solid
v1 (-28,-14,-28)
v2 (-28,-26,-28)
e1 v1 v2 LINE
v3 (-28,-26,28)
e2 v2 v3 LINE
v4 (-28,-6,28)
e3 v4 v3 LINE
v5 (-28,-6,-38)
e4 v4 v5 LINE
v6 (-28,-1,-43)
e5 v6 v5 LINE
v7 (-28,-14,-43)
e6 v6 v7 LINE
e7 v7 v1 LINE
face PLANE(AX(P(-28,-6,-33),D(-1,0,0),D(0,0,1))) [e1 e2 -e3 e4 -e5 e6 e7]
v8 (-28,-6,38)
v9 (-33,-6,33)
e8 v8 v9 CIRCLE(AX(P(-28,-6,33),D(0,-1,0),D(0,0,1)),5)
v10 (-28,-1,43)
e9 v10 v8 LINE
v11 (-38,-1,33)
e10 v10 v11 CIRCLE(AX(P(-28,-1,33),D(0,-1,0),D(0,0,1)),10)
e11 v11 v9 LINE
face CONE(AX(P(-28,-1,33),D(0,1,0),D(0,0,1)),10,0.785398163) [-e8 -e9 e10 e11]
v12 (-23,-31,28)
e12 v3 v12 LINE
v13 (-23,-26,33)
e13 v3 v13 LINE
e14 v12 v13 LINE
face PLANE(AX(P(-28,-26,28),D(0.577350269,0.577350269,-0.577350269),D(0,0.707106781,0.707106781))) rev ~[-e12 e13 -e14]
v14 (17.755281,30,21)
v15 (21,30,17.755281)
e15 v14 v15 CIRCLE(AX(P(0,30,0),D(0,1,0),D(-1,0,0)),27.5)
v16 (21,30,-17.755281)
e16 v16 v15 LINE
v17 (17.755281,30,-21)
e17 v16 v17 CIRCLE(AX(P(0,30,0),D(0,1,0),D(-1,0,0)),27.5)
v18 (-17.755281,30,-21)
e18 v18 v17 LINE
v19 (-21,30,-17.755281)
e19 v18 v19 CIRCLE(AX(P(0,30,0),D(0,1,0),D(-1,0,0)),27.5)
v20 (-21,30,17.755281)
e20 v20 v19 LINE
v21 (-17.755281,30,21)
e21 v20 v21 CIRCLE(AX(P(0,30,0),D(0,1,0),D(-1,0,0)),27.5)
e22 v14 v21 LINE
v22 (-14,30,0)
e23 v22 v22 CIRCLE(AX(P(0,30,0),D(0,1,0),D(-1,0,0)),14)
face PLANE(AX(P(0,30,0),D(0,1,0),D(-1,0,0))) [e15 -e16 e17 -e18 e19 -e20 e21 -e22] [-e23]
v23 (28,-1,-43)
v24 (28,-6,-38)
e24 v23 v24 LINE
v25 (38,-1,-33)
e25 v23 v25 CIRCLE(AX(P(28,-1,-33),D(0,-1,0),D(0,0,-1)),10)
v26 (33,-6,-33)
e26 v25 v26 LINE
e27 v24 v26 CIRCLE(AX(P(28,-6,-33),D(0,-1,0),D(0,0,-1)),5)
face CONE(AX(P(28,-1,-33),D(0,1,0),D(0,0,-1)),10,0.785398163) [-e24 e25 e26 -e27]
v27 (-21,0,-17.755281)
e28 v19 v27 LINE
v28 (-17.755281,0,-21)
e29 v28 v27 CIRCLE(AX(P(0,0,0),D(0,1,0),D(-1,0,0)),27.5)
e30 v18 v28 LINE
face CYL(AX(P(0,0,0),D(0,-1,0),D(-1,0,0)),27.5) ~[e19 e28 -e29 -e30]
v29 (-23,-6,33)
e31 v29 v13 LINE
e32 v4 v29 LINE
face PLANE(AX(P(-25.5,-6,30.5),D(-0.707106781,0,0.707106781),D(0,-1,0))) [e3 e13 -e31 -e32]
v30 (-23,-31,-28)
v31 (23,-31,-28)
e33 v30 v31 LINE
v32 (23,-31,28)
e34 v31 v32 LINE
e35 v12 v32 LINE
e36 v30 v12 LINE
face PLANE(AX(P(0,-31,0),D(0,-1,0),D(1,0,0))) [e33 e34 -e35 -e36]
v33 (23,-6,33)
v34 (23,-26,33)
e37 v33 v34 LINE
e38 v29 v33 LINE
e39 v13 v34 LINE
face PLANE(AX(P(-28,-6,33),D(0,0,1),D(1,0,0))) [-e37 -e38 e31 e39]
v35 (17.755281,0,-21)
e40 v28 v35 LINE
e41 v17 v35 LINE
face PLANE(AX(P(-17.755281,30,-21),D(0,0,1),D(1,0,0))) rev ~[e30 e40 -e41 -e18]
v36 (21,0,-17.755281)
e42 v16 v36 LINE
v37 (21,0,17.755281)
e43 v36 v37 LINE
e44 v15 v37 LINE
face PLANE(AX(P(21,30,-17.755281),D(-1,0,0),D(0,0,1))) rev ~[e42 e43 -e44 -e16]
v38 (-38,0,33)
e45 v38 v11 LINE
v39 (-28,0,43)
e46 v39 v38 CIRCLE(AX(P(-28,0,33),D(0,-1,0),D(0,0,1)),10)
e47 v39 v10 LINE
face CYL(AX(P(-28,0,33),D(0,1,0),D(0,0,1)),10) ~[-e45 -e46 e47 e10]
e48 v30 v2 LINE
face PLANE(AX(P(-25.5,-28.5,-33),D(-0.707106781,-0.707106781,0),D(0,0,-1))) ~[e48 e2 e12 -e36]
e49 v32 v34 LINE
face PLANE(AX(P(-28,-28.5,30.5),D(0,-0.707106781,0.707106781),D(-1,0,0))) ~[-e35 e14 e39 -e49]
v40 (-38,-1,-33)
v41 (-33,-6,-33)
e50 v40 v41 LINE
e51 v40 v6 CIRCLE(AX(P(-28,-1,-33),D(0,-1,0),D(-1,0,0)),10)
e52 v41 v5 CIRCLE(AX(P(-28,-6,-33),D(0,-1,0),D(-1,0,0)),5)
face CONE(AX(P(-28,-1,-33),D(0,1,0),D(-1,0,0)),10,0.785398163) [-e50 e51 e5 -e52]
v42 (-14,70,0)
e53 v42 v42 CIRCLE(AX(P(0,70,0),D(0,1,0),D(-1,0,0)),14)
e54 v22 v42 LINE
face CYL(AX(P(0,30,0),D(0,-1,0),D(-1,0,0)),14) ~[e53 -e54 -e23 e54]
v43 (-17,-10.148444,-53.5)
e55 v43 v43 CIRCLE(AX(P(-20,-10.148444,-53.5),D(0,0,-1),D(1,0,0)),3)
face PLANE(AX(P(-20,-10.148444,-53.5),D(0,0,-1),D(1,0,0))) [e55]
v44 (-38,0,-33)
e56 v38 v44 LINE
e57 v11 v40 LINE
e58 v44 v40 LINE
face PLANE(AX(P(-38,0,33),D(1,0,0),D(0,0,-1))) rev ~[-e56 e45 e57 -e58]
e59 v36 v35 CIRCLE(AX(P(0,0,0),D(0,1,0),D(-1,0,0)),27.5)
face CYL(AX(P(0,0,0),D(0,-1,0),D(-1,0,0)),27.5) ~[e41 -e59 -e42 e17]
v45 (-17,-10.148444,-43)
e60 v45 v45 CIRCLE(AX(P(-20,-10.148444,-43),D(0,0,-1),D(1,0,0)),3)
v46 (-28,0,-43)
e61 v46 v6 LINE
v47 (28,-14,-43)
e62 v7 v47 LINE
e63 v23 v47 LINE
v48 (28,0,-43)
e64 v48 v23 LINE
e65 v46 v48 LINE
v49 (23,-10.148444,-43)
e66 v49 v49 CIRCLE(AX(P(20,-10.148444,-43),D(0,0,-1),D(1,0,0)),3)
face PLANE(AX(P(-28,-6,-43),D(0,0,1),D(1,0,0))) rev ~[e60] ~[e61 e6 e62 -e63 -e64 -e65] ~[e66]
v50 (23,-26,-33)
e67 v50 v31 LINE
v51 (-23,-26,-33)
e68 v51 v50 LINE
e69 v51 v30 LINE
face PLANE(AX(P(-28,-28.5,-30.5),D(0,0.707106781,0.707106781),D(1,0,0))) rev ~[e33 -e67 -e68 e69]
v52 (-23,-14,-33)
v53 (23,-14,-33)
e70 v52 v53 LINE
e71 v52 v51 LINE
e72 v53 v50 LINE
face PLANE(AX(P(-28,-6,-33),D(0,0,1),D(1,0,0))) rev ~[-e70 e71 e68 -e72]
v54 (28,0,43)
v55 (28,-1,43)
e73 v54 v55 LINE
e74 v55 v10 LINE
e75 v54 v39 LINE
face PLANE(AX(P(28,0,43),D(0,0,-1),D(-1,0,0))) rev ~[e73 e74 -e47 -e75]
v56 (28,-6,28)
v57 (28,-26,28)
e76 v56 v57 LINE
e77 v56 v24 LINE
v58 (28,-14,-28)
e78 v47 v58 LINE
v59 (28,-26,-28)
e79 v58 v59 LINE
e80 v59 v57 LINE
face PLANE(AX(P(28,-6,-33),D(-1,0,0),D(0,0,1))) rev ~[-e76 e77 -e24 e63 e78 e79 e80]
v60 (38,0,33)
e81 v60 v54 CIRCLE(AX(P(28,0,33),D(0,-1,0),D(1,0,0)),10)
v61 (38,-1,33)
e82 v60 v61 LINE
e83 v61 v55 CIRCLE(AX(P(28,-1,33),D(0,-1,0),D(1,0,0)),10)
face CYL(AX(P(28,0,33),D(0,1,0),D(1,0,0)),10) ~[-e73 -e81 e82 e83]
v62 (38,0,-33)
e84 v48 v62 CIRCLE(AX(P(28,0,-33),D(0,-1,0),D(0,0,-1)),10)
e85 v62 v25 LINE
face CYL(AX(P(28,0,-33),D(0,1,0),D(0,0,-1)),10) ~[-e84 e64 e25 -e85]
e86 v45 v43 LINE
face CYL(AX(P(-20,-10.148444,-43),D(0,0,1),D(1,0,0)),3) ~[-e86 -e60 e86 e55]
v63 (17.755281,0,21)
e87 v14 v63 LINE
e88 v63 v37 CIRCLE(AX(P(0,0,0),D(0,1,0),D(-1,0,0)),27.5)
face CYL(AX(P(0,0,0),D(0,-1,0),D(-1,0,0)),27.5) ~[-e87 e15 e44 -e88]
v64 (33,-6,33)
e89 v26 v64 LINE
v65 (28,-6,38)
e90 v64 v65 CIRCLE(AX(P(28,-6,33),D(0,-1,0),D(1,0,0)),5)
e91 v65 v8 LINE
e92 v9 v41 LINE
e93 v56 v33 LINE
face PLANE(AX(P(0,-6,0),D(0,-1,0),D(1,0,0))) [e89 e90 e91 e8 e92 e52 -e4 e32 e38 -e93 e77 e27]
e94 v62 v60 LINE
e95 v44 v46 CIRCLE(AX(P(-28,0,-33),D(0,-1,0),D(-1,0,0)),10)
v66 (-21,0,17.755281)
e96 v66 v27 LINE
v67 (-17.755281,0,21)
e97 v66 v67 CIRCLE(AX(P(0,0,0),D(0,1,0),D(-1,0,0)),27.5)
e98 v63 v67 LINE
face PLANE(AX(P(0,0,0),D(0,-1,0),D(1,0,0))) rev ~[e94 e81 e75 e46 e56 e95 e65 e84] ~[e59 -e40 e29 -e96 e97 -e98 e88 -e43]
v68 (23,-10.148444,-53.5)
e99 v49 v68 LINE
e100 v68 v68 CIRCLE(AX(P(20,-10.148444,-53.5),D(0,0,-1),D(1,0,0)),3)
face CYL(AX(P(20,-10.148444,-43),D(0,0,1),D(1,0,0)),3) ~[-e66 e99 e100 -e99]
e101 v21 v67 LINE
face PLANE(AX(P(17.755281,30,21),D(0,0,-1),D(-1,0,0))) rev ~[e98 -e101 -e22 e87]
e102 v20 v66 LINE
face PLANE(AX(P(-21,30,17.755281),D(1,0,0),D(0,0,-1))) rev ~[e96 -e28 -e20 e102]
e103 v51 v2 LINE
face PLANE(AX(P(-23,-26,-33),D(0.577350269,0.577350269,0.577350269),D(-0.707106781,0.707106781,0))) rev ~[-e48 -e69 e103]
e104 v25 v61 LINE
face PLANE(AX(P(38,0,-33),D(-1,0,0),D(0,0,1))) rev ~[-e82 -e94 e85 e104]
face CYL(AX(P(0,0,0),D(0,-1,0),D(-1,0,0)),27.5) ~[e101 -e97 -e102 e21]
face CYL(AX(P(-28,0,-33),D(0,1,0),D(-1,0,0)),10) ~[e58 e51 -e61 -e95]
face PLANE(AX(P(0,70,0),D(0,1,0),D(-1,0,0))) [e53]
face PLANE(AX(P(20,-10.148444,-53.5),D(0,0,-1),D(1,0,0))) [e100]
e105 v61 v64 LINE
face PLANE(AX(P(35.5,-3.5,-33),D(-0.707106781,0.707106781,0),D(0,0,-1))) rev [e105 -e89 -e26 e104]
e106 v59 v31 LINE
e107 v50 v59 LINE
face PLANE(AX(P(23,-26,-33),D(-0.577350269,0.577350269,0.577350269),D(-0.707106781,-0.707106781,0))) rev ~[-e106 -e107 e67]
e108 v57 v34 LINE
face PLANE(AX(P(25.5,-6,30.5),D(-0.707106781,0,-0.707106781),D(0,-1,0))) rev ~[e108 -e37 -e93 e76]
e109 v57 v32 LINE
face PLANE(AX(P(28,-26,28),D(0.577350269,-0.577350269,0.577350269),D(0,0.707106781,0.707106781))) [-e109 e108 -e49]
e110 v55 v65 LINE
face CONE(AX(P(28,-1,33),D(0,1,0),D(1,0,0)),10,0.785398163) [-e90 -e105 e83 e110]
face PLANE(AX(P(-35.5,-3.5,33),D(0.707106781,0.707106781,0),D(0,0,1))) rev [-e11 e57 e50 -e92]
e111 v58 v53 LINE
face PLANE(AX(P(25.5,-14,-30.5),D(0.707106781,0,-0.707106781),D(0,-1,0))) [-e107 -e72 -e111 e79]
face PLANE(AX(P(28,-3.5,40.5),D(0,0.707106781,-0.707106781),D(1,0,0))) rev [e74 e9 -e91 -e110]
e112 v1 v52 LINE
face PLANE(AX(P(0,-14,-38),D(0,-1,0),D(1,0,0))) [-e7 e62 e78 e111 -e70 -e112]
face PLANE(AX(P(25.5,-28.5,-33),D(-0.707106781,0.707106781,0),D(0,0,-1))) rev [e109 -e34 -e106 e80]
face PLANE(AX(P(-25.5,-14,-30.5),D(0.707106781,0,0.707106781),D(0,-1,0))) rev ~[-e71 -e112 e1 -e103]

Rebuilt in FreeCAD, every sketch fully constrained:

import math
import FreeCAD as App
import Part
import Sketcher
from FreeCAD import Vector
Q = App.Units.Quantity


def edges_at(feature, points):
    """Names of the edges that pass closest to the given points."""
    edges = feature.Shape.Edges
    near = lambda p: min(range(len(edges)), key=lambda i: edges[i].distToShape(Part.Vertex(*p))[0])
    return sorted({f"Edge{near(p) + 1}" for p in points})

doc = App.newDocument("Part")
body = doc.addObject("PartDesign::Body", "Body")

sketch1 = body.newObject("Sketcher::SketchObject", "Sketch")
sketch1.AttachmentSupport = (doc.getObject("XZ_Plane"), [""])
sketch1.MapMode = "FlatFace"
sketch1.addGeometry([
    Part.ArcOfCircle(Part.Circle(Vector(28, 33, 0), Vector(0, 0, 1), 10), math.radians(0), math.radians(90)),
    Part.LineSegment(Vector(28, 43, 0), Vector(-28, 43, 0)),
    Part.ArcOfCircle(Part.Circle(Vector(-28, 33, 0), Vector(0, 0, 1), 10), math.radians(90), math.radians(180)),
    Part.LineSegment(Vector(-38, 33, 0), Vector(-38, -33, 0)),
    Part.ArcOfCircle(Part.Circle(Vector(-28, -33, 0), Vector(0, 0, 1), 10), math.radians(180), math.radians(270)),
    Part.LineSegment(Vector(-28, -43, 0), Vector(28, -43, 0)),
    Part.ArcOfCircle(Part.Circle(Vector(28, -33, 0), Vector(0, 0, 1), 10), math.radians(-90), math.radians(0)),
    Part.LineSegment(Vector(38, -33, 0), Vector(38, 33, 0)),
], False)
sketch1.addConstraint([
    Sketcher.Constraint("Tangent", 0, 2, 1, 1),
    Sketcher.Constraint("Tangent", 1, 2, 2, 1),
    Sketcher.Constraint("Tangent", 2, 2, 3, 1),
    Sketcher.Constraint("Tangent", 3, 2, 4, 1),
    Sketcher.Constraint("Tangent", 4, 2, 5, 1),
    Sketcher.Constraint("Tangent", 5, 2, 6, 1),
    Sketcher.Constraint("Tangent", 6, 2, 7, 1),
    Sketcher.Constraint("Tangent", 7, 2, 0, 1),
    Sketcher.Constraint("Horizontal", 1),
    Sketcher.Constraint("Vertical", 3),
    Sketcher.Constraint("Horizontal", 5),
    Sketcher.Constraint("Vertical", 7),
    Sketcher.Constraint("Equal", 0, 2),
    Sketcher.Constraint("Equal", 2, 4),
    Sketcher.Constraint("Equal", 4, 6),
    Sketcher.Constraint("Symmetric", 0, 3, 4, 3, -1, 1),
    Sketcher.Constraint("Radius", 0, Q("10 mm")),
    Sketcher.Constraint("DistanceX", 1, 2, 1, 1, Q("56 mm")),
    Sketcher.Constraint("DistanceY", 3, 2, 3, 1, Q("66 mm")),
])
pad1 = body.newObject("PartDesign::Pad", "Pad")
pad1.Profile = sketch1
pad1.Length = 6

sketch2 = body.newObject("Sketcher::SketchObject", "Sketch001")
sketch2.AttachmentSupport = (doc.getObject("XZ_Plane"), [""])
sketch2.MapMode = "FlatFace"
sketch2.addGeometry(Part.Circle(Vector(0, 0, 0), Vector(0, 0, 1), 27.5), False)
sketch2.addConstraint([
    Sketcher.Constraint("Coincident", 0, 3, -1, 1),
    Sketcher.Constraint("Diameter", 0, Q("55 mm")),
])
pad2 = body.newObject("PartDesign::Pad", "Pad001")
pad2.Profile = sketch2
pad2.Length = 30
pad2.Reversed = True

sketch3 = body.newObject("Sketcher::SketchObject", "Sketch002")
sketch3.AttachmentSupport = (doc.getObject("XZ_Plane"), [""])
sketch3.MapMode = "FlatFace"
sketch3.AttachmentOffset = App.Placement(Vector(0, 0, -30), App.Rotation())
sketch3.addGeometry(Part.Circle(Vector(0, 0, 0), Vector(0, 0, 1), 14), False)
sketch3.addConstraint([
    Sketcher.Constraint("Coincident", 0, 3, -1, 1),
    Sketcher.Constraint("Diameter", 0, Q("28 mm")),
])
pad3 = body.newObject("PartDesign::Pad", "Pad002")
pad3.Profile = sketch3
pad3.Length = 40
pad3.Reversed = True

sketch4 = body.newObject("Sketcher::SketchObject", "Sketch003")
sketch4.AttachmentSupport = (doc.getObject("XZ_Plane"), [""])
sketch4.MapMode = "FlatFace"
sketch4.AttachmentOffset = App.Placement(Vector(0, 0, 6), App.Rotation())
sketch4.addGeometry([
    Part.LineSegment(Vector(-28, -33, 0), Vector(-28, -43, 0)),
    Part.LineSegment(Vector(-28, -43, 0), Vector(28, -43, 0)),
    Part.LineSegment(Vector(28, -43, 0), Vector(28, -33, 0)),
    Part.LineSegment(Vector(28, -33, 0), Vector(-28, -33, 0)),
], False)
sketch4.addConstraint([
    Sketcher.Constraint("Coincident", 0, 2, 1, 1),
    Sketcher.Constraint("Coincident", 1, 2, 2, 1),
    Sketcher.Constraint("Coincident", 2, 2, 3, 1),
    Sketcher.Constraint("Coincident", 3, 2, 0, 1),
    Sketcher.Constraint("Vertical", 0),
    Sketcher.Constraint("Horizontal", 1),
    Sketcher.Constraint("Vertical", 2),
    Sketcher.Constraint("Horizontal", 3),
    Sketcher.Constraint("DistanceX", 1, 1, 1, 2, Q("56 mm")),
    Sketcher.Constraint("DistanceY", 0, 2, 0, 1, Q("10 mm")),
    Sketcher.Constraint("DistanceX", 0, 2, -1, 1, Q("28 mm")),
    Sketcher.Constraint("DistanceY", 0, 2, -1, 1, Q("43 mm")),
])
pad4 = body.newObject("PartDesign::Pad", "Pad003")
pad4.Profile = sketch4
pad4.Length = 8

sketch5 = body.newObject("Sketcher::SketchObject", "Sketch004")
sketch5.AttachmentSupport = (doc.getObject("XY_Plane"), [""])
sketch5.MapMode = "FlatFace"
sketch5.AttachmentOffset = App.Placement(Vector(0, 0, -43), App.Rotation())
sketch5.addGeometry([
    Part.Circle(Vector(-20, -10.148444, 0), Vector(0, 0, 1), 3),
    Part.Circle(Vector(20, -10.148444, 0), Vector(0, 0, 1), 3),
], False)
sketch5.addConstraint([
    Sketcher.Constraint("Equal", 0, 1),
    Sketcher.Constraint("Symmetric", 0, 3, 1, 3, -2),
    Sketcher.Constraint("Diameter", 0, Q("6 mm")),
    Sketcher.Constraint("DistanceX", 0, 3, -1, 1, Q("20 mm")),
    Sketcher.Constraint("DistanceY", 0, 3, -1, 1, Q("10.148444 mm")),
])
pad5 = body.newObject("PartDesign::Pad", "Pad004")
pad5.Profile = sketch5
pad5.Length = 10.5
pad5.Reversed = True

sketch6 = body.newObject("Sketcher::SketchObject", "Sketch005")
sketch6.AttachmentSupport = (doc.getObject("XZ_Plane"), [""])
sketch6.MapMode = "FlatFace"
sketch6.AttachmentOffset = App.Placement(Vector(0, 0, 6), App.Rotation())
sketch6.addGeometry([
    Part.LineSegment(Vector(-28, 33, 0), Vector(-28, -33, 0)),
    Part.LineSegment(Vector(-28, -33, 0), Vector(28, -33, 0)),
    Part.LineSegment(Vector(28, -33, 0), Vector(28, 33, 0)),
    Part.LineSegment(Vector(28, 33, 0), Vector(-28, 33, 0)),
], False)
sketch6.addConstraint([
    Sketcher.Constraint("Coincident", 0, 2, 1, 1),
    Sketcher.Constraint("Coincident", 1, 2, 2, 1),
    Sketcher.Constraint("Coincident", 2, 2, 3, 1),
    Sketcher.Constraint("Coincident", 3, 2, 0, 1),
    Sketcher.Constraint("Vertical", 0),
    Sketcher.Constraint("Horizontal", 1),
    Sketcher.Constraint("Vertical", 2),
    Sketcher.Constraint("Horizontal", 3),
    Sketcher.Constraint("Symmetric", 0, 2, 2, 2, -1, 1),
    Sketcher.Constraint("DistanceX", 1, 1, 1, 2, Q("56 mm")),
    Sketcher.Constraint("DistanceY", 0, 2, 0, 1, Q("66 mm")),
])
pad6 = body.newObject("PartDesign::Pad", "Pad005")
pad6.Profile = sketch6
pad6.Length = 25
doc.recompute()

chamfer = body.newObject("PartDesign::Chamfer", "Chamfer")
chamfer.Base = (pad6, edges_at(pad6, [
    (0, -31, 33),
    (28, -31, 0),
    (-28, -31, 0),
    (-28, -18.5, 33),
    (28, -18.5, 33),
    (28, -22.5, -33),
    (0, -31, -33),
    (-28, -22.5, -33),
    (0, -6, 43),
]))
chamfer.Size = 5

sketch7 = body.newObject("Sketcher::SketchObject", "Sketch006")
sketch7.AttachmentSupport = (doc.getObject("XZ_Plane"), [""])
sketch7.MapMode = "FlatFace"
sketch7.AttachmentOffset = App.Placement(Vector(0, 0, -30), App.Rotation())
sketch7.addGeometry([
    Part.LineSegment(Vector(17.755281, 21, 0), Vector(-17.755281, 21, 0)),
    Part.ArcOfCircle(Part.Circle(Vector(0, 0, 0), Vector(0, 0, 1), 27.5), math.radians(49.785829), math.radians(130.214171)),
    Part.ArcOfCircle(Part.Circle(Vector(0, 0, 0), Vector(0, 0, 1), 27.5), math.radians(139.785829), math.radians(180)),
    Part.LineSegment(Vector(-21, 17.755281, 0), Vector(-21, -17.755281, 0)),
    Part.ArcOfCircle(Part.Circle(Vector(0, 0, 0), Vector(0, 0, 1), 27.5), math.radians(180), math.radians(220.214171)),
    Part.ArcOfCircle(Part.Circle(Vector(0, 0, 0), Vector(0, 0, 1), 27.5), math.radians(-130.214171), math.radians(-49.785829)),
    Part.LineSegment(Vector(-17.755281, -21, 0), Vector(17.755281, -21, 0)),
    Part.LineSegment(Vector(21, -17.755281, 0), Vector(21, 17.755281, 0)),
    Part.ArcOfCircle(Part.Circle(Vector(0, 0, 0), Vector(0, 0, 1), 27.5), math.radians(-40.214171), math.radians(40.214171)),
], False)
sketch7.addConstraint([
    Sketcher.Constraint("Coincident", 0, 1, 1, 1),
    Sketcher.Constraint("Coincident", 1, 2, 0, 2),
    Sketcher.Constraint("Coincident", 2, 1, 3, 1),
    Sketcher.Constraint("Coincident", 3, 2, 4, 2),
    Sketcher.Constraint("Tangent", 4, 1, 2, 2),
    Sketcher.Constraint("Coincident", 5, 1, 6, 1),
    Sketcher.Constraint("Coincident", 6, 2, 5, 2),
    Sketcher.Constraint("Coincident", 7, 1, 8, 1),
    Sketcher.Constraint("Coincident", 8, 2, 7, 2),
    Sketcher.Constraint("Horizontal", 0),
    Sketcher.Constraint("Vertical", 3),
    Sketcher.Constraint("Horizontal", 6),
    Sketcher.Constraint("Vertical", 7),
    Sketcher.Constraint("Coincident", 1, 3, -1, 1),
    Sketcher.Constraint("Coincident", 2, 3, -1, 1),
    Sketcher.Constraint("Coincident", 5, 3, -1, 1),
    Sketcher.Constraint("Coincident", 8, 3, -1, 1),
    Sketcher.Constraint("Equal", 1, 2),
    Sketcher.Constraint("Equal", 2, 4),
    Sketcher.Constraint("Equal", 4, 5),
    Sketcher.Constraint("Equal", 5, 8),
    Sketcher.Constraint("PointOnObject", 4, 1, -1),
    Sketcher.Constraint("Horizontal", 3, 2, 7, 1),
    Sketcher.Constraint("Vertical", 1, 2, 5, 1),
    Sketcher.Constraint("Equal", 6, 3),
    Sketcher.Constraint("Radius", 1, Q("27.5 mm")),
    Sketcher.Constraint("DistanceY", -1, 1, 0, 1, Q("21 mm")),
])
pocket1 = body.newObject("PartDesign::Pocket", "Pocket")
pocket1.Profile = sketch7
pocket1.Length = 30
pocket1.Reversed = True

doc.recompute()
